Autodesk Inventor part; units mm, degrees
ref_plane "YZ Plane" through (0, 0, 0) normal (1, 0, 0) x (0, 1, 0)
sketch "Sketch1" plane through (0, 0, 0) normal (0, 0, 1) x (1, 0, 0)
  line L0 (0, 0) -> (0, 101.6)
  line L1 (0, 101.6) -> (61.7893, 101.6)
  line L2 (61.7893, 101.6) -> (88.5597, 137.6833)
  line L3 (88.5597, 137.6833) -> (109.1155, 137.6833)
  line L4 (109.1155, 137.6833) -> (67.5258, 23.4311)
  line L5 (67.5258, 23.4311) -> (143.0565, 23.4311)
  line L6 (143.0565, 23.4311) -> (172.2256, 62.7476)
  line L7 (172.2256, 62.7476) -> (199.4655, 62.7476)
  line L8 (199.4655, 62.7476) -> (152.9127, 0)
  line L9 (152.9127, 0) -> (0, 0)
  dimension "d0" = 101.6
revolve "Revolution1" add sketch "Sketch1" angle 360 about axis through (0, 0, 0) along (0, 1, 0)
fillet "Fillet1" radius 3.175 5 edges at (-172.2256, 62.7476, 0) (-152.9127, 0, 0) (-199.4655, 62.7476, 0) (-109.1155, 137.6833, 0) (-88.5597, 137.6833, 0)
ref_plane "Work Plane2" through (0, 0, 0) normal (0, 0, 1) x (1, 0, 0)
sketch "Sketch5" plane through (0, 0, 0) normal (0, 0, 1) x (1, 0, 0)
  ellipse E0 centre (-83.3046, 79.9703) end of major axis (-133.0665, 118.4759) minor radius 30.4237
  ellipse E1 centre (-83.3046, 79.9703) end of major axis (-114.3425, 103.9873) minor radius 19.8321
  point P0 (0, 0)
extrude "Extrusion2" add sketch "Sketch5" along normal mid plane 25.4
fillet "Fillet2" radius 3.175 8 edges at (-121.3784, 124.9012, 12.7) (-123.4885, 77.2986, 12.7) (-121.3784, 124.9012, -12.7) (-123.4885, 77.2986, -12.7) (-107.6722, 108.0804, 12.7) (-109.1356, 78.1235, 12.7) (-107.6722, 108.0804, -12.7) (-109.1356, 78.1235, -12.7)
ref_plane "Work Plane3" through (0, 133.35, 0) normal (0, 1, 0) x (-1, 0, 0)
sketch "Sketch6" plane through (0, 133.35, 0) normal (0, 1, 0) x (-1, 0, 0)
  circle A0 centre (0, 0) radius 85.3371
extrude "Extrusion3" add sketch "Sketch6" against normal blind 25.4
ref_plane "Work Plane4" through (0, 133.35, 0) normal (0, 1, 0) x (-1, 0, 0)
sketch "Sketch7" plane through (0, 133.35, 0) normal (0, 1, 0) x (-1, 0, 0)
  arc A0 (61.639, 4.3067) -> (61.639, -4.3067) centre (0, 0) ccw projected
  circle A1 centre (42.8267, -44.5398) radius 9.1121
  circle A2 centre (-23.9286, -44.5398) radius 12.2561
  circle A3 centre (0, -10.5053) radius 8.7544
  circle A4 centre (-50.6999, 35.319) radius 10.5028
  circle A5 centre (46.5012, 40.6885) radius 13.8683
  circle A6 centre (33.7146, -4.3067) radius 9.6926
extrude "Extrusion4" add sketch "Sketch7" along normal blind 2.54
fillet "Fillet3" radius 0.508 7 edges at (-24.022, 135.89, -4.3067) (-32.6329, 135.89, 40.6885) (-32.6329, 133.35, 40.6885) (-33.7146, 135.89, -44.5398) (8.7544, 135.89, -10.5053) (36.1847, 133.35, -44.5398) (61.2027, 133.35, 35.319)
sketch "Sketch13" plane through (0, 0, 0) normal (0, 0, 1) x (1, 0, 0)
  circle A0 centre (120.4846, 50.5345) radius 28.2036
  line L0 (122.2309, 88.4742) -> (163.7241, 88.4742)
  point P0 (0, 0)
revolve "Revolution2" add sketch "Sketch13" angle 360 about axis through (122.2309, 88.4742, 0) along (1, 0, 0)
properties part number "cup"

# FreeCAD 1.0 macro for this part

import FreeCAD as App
import Part
import Sketcher
Q = App.Units.Quantity


def edges_at(feature, points):
    """Names of the edges that pass closest to the given points."""
    edges = feature.Shape.Edges
    near = lambda p: min(range(len(edges)), key=lambda i: edges[i].distToShape(Part.Vertex(*p))[0])
    return sorted({f"Edge{near(p) + 1}" for p in points})

doc = App.newDocument("Part")
body = doc.addObject("PartDesign::Body", "Body")

# Sketch on XY plane
sketch1 = body.newObject("Sketcher::SketchObject", "Sketch")
sketch1.AttachmentSupport = (doc.getObject("XY_Plane"), [""])
sketch1.MapMode = "FlatFace"
sketch1.addGeometry([
    Part.LineSegment(App.Vector(0, 101.6, 0), App.Vector(0, 0, 0)),  # 0
    Part.LineSegment(App.Vector(0, 0, 0), App.Vector(152.9127, 0, 0)),  # 1
    Part.LineSegment(App.Vector(152.9127, 0, 0), App.Vector(199.4655, 62.7476, 0)),  # 2
    Part.LineSegment(App.Vector(199.4655, 62.7476, 0), App.Vector(172.2256, 62.7476, 0)),  # 3
    Part.LineSegment(App.Vector(172.2256, 62.7476, 0), App.Vector(143.0565, 23.4311, 0)),  # 4
    Part.LineSegment(App.Vector(143.0565, 23.4311, 0), App.Vector(67.5258, 23.4311, 0)),  # 5
    Part.LineSegment(App.Vector(67.5258, 23.4311, 0), App.Vector(109.1155, 137.6833, 0)),  # 6
    Part.LineSegment(App.Vector(109.1155, 137.6833, 0), App.Vector(88.5597, 137.6833, 0)),  # 7
    Part.LineSegment(App.Vector(88.5597, 137.6833, 0), App.Vector(61.7893, 101.6, 0)),  # 8
    Part.LineSegment(App.Vector(61.7893, 101.6, 0), App.Vector(0, 101.6, 0)),  # 9
], False)
sketch1.addConstraint([
    Sketcher.Constraint("Coincident", 0, 2, 1, 1),
    Sketcher.Constraint("Coincident", 1, 2, 2, 1),
    Sketcher.Constraint("Coincident", 2, 2, 3, 1),
    Sketcher.Constraint("Coincident", 3, 2, 4, 1),
    Sketcher.Constraint("Coincident", 4, 2, 5, 1),
    Sketcher.Constraint("Coincident", 5, 2, 6, 1),
    Sketcher.Constraint("Coincident", 6, 2, 7, 1),
    Sketcher.Constraint("Coincident", 7, 2, 8, 1),
    Sketcher.Constraint("Coincident", 8, 2, 9, 1),
    Sketcher.Constraint("Coincident", 9, 2, 0, 1),
    Sketcher.Constraint("Vertical", 0),
    Sketcher.Constraint("Horizontal", 1),
    Sketcher.Constraint("Horizontal", 3),
    Sketcher.Constraint("Horizontal", 5),
    Sketcher.Constraint("Horizontal", 7),
    Sketcher.Constraint("Horizontal", 9),
    Sketcher.Constraint("Coincident", 0, 2, -1, 1),
    Sketcher.Constraint("Parallel", 2, 4),
    Sketcher.Constraint("Parallel", 4, 8),
    Sketcher.Constraint("DistanceY", 0, 2, 0, 1, Q("4 in")),
    Sketcher.Constraint("DistanceX", 1, 1, 1, 2, Q("152.9127 mm")),
    Sketcher.Constraint("DistanceX", 3, 2, 3, 1, Q("27.24 mm")),
    Sketcher.Constraint("DistanceX", 5, 2, 5, 1, Q("75.5307 mm")),
    Sketcher.Constraint("DistanceX", 7, 2, 7, 1, Q("20.5558 mm")),
    Sketcher.Constraint("DistanceX", 9, 2, 9, 1, Q("61.7893 mm")),
    Sketcher.Constraint("DistanceX", -1, 1, 5, 2, Q("2.6585 in")),
    Sketcher.Constraint("DistanceY", -1, 1, 6, 2, Q("5.4206 in")),
    Sketcher.Constraint("DistanceX", -1, 1, 7, 2, Q("3.4866 in")),
    Sketcher.Constraint("DistanceX", 4, 2, 3, 2, Q("1.1484 in")),
])
revolution = body.newObject("PartDesign::Revolution", "Revolution")
revolution.Profile = sketch1
revolution.ReferenceAxis = (sketch1, ["V_Axis"])
revolution.Angle = 360
doc.recompute()

fillet = body.newObject("PartDesign::Fillet", "Fillet")
fillet.Base = (revolution, edges_at(revolution, [
    (-172.226, 62.748, 0),
    (-152.913, 0, 0),
    (-199.465, 62.748, 0),
    (-109.115, 137.683, 0),
    (-88.56, 137.683, 0),
]))
fillet.Radius = Q("0.125 in")

# Sketch on XY plane
sketch2 = body.newObject("Sketcher::SketchObject", "Sketch001")
sketch2.AttachmentSupport = (doc.getObject("XY_Plane"), [""])
sketch2.MapMode = "FlatFace"
sketch2.addGeometry([
    Part.Ellipse(App.Vector(-133.0665, 118.4759, 0), App.Vector(-101.923205, 55.908939, 0), App.Vector(-83.3046, 79.9703, 0)),
    Part.Ellipse(App.Vector(-114.3425, 103.9873, 0), App.Vector(-95.44138, 64.28557, 0), App.Vector(-83.3046, 79.9703, 0)),
], False)
sketch2.addConstraint([
    Sketcher.Constraint("Block", 0),
    Sketcher.Constraint("Block", 1),
])
pad1 = body.newObject("PartDesign::Pad", "Pad")
pad1.Profile = sketch2
pad1.Length = Q("1 in")
pad1.Midplane = True
doc.recompute()

fillet2 = body.newObject("PartDesign::Fillet", "Fillet001")
fillet2.Base = (pad1, edges_at(pad1, [
    (-121.378, 124.901, 12.7),
    (-123.489, 77.299, 12.7),
    (-121.378, 124.901, -12.7),
    (-123.489, 77.299, -12.7),
    (-107.672, 108.08, 12.7),
    (-109.136, 78.124, 12.7),
    (-107.672, 108.08, -12.7),
    (-109.136, 78.124, -12.7),
]))
fillet2.Radius = Q("0.125 in")

# Sketch on XZ plane
sketch3 = body.newObject("Sketcher::SketchObject", "Sketch002")
sketch3.AttachmentSupport = (doc.getObject("XZ_Plane"), [""])
sketch3.MapMode = "FlatFace"
sketch3.AttachmentOffset = App.Placement(App.Vector(0, 0, -5.25 * 25.4), App.Rotation())
sketch3.addGeometry(Part.Circle(App.Vector(0, 0, 0), App.Vector(0, 0, 1), 85.3371), False)
sketch3.addConstraint([
    Sketcher.Constraint("Coincident", 0, 3, -1, 1),
    Sketcher.Constraint("Diameter", 0, Q("170.6742 mm")),
])
pad2 = body.newObject("PartDesign::Pad", "Pad001")
pad2.Profile = sketch3
pad2.Length = Q("1 in")

# Sketch on XZ plane
sketch4 = body.newObject("Sketcher::SketchObject", "Sketch003")
sketch4.AttachmentSupport = (doc.getObject("XZ_Plane"), [""])
sketch4.MapMode = "FlatFace"
sketch4.AttachmentOffset = App.Placement(App.Vector(0, 0, -5.25 * 25.4), App.Rotation())
sketch4.addGeometry([
    Part.Circle(App.Vector(-46.5012, 40.6885, 0), App.Vector(0, 0, 1), 13.8683),  # 0
    Part.Circle(App.Vector(-42.8267, -44.5398, 0), App.Vector(0, 0, 1), 9.1121),  # 1
    Part.Circle(App.Vector(23.9286, -44.5398, 0), App.Vector(0, 0, 1), 12.2561),  # 2
    Part.Circle(App.Vector(50.6999, 35.319, 0), App.Vector(0, 0, 1), 10.5028),  # 3
    Part.Circle(App.Vector(0, -10.5053, 0), App.Vector(0, 0, 1), 8.7544),  # 4
    Part.Circle(App.Vector(-33.7146, -4.3067, 0), App.Vector(0, 0, 1), 9.6926),  # 5
], False)
sketch4.addConstraint([
    Sketcher.Constraint("PointOnObject", 4, 3, -2),
    Sketcher.Constraint("Horizontal", 1, 3, 2, 3),
    Sketcher.Constraint("Diameter", 0, Q("1.092 in")),
    Sketcher.Constraint("Diameter", 3, Q("0.827 in")),
    Sketcher.Constraint("Diameter", 1, Q("0.7175 in")),
    Sketcher.Constraint("Diameter", 5, Q("0.7632 in")),
    Sketcher.Constraint("Diameter", 2, Q("24.5122 mm")),
    Sketcher.Constraint("Diameter", 4, Q("17.5088 mm")),
    Sketcher.Constraint("DistanceX", 2, 3, 3, 3, Q("1.054 in")),
    Sketcher.Constraint("DistanceY", -1, 1, 0, 3, Q("1.6019 in")),
    Sketcher.Constraint("DistanceX", 1, 3, -1, 1, Q("1.6861 in")),
    Sketcher.Constraint("DistanceY", -1, 1, 3, 3, Q("1.3905 in")),
    Sketcher.Constraint("DistanceY", 4, 3, -1, 1, Q("0.4136 in")),
    Sketcher.Constraint("DistanceX", 0, 3, 5, 3, Q("0.5034 in")),
    Sketcher.Constraint("DistanceX", 5, 3, 3, 3, Q("3.3234 in")),
    Sketcher.Constraint("DistanceX", 0, 3, -1, 1, Q("46.5012 mm")),
    Sketcher.Constraint("DistanceY", 1, 3, -1, 1, Q("44.5398 mm")),
    Sketcher.Constraint("DistanceY", 5, 3, -1, 1, Q("4.3067 mm")),
])
pad3 = body.newObject("PartDesign::Pad", "Pad002")
pad3.Profile = sketch4
pad3.Length = Q("0.1 in")
pad3.Reversed = True
doc.recompute()

fillet3 = body.newObject("PartDesign::Fillet", "Fillet002")
fillet3.Base = (pad3, edges_at(pad3, [
    (-24.022, 135.89, -4.307),
    (-32.633, 135.89, 40.688),
    (-32.633, 133.35, 40.688),
    (-33.715, 135.89, -44.54),
    (8.754, 135.89, -10.505),
    (36.185, 133.35, -44.54),
    (61.203, 133.35, 35.319),
]))
fillet3.Radius = Q("0.02 in")

# Sketch on XY plane
sketch5 = body.newObject("Sketcher::SketchObject", "Sketch004")
sketch5.AttachmentSupport = (doc.getObject("XY_Plane"), [""])
sketch5.MapMode = "FlatFace"
sketch5.addGeometry(Part.Circle(App.Vector(120.4846, 50.5345, 0), App.Vector(0, 0, 1), 28.2036), False)
sketch5.addGeometry(Part.LineSegment(App.Vector(120.4846, 88.4742, 0), App.Vector(130.4846, 88.4742, 0)), True)  # axis
sketch5.addConstraint([
    Sketcher.Constraint("Horizontal", 1),
    Sketcher.Constraint("Vertical", 0, 3, 1, 1),
    Sketcher.Constraint("Diameter", 0, Q("56.4072 mm")),
    Sketcher.Constraint("DistanceX", 1, 1, 1, 2, Q("0.3937 in")),
    Sketcher.Constraint("DistanceX", -1, 1, 0, 3, Q("4.7435 in")),
    Sketcher.Constraint("DistanceY", 0, 3, 1, 1, Q("1.4937 in")),
    Sketcher.Constraint("DistanceY", -1, 1, 0, 3, Q("50.5345 mm")),
])
revolution2 = body.newObject("PartDesign::Revolution", "Revolution001")
revolution2.Profile = sketch5
revolution2.ReferenceAxis = (sketch5, ["Axis0"])
revolution2.Angle = 360

doc.recompute()
